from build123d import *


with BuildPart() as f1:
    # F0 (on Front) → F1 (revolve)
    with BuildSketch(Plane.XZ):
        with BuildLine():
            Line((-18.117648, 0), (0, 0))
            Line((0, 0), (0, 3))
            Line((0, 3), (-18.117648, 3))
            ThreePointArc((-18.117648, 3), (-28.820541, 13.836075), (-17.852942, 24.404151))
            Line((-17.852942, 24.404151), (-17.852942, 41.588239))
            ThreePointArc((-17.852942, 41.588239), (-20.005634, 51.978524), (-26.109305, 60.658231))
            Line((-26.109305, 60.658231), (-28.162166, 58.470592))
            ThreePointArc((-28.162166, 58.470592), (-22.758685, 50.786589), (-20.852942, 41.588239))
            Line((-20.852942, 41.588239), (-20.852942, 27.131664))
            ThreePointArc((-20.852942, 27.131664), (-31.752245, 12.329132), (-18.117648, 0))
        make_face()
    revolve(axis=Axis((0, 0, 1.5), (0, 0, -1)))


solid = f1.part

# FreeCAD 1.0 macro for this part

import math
import FreeCAD as App
import Part
import Sketcher
from FreeCAD import Vector
Q = App.Units.Quantity

doc = App.newDocument("Part")
body = doc.addObject("PartDesign::Body", "Body")

# Sketch on XZ plane
sketch1 = doc.addObject("Sketcher::SketchObject", "Sketch")
body.addObject(sketch1)
sketch1.AttachmentSupport = (doc.XZ_Plane, [""])
sketch1.MapMode = "FlatFace"
sketch1.addGeometry(Part.LineSegment(Vector(-18.1, 0, 0), Vector(0, 0, 0)), False)
sketch1.addGeometry(Part.LineSegment(Vector(0, 0, 0), Vector(0, 3, 0)), False)
sketch1.addGeometry(Part.LineSegment(Vector(0, 3, 0), Vector(-18.1, 3, 0)), False)
sketch1.addGeometry(Part.ArcOfCircle(Part.Circle(Vector(-18.1, 13.7, 0), Vector(0, 0, 1), 10.7), math.radians(89), math.radians(270)), False)
sketch1.addGeometry(Part.LineSegment(Vector(-17.9, 24.4, 0), Vector(-17.9, 41.6, 0)), False)
sketch1.addGeometry(Part.ArcOfCircle(Part.Circle(Vector(-44, 41.6, 0), Vector(0, 0, 1), 26.2), math.radians(0), math.radians(47)), False)
sketch1.addGeometry(Part.LineSegment(Vector(-26.1, 60.7, 0), Vector(-28.2, 58.5, 0)), False)
sketch1.addGeometry(Part.ArcOfCircle(Part.Circle(Vector(-44, 41.6, 0), Vector(0, 0, 1), 23.2), math.radians(0), math.radians(47)), False)
sketch1.addGeometry(Part.LineSegment(Vector(-20.9, 41.6, 0), Vector(-20.9, 27.1, 0)), False)
sketch1.addGeometry(Part.ArcOfCircle(Part.Circle(Vector(-18.1, 13.7, 0), Vector(0, 0, 1), 13.7), math.radians(102), math.radians(270)), False)
sketch1.addConstraint(Sketcher.Constraint("Coincident", 0, 2, 1, 1))
sketch1.addConstraint(Sketcher.Constraint("Coincident", 1, 2, 2, 1))
sketch1.addConstraint(Sketcher.Constraint("Tangent", 2, 2, 3, 2))
sketch1.addConstraint(Sketcher.Constraint("Coincident", 3, 1, 4, 1))
sketch1.addConstraint(Sketcher.Constraint("Tangent", 4, 2, 5, 1))
sketch1.addConstraint(Sketcher.Constraint("Coincident", 5, 2, 6, 1))
sketch1.addConstraint(Sketcher.Constraint("Coincident", 6, 2, 7, 2))
sketch1.addConstraint(Sketcher.Constraint("Tangent", 7, 1, 8, 1))
sketch1.addConstraint(Sketcher.Constraint("Coincident", 8, 2, 9, 1))
sketch1.addConstraint(Sketcher.Constraint("Tangent", 9, 2, 0, 1))
sketch1.addConstraint(Sketcher.Constraint("Horizontal", 0))
sketch1.addConstraint(Sketcher.Constraint("Vertical", 1))
sketch1.addConstraint(Sketcher.Constraint("Horizontal", 2))
sketch1.addConstraint(Sketcher.Constraint("Vertical", 4))
sketch1.addConstraint(Sketcher.Constraint("Vertical", 8))
sketch1.addConstraint(Sketcher.Constraint("Coincident", 0, 2, -1, 1))
sketch1.addConstraint(Sketcher.Constraint("Coincident", 7, 3, 5, 3))
sketch1.addConstraint(Sketcher.Constraint("Coincident", 9, 3, 3, 3))
sketch1.addConstraint(Sketcher.Constraint("DistanceY", 1, 1, 1, 2, Q("3 mm")))
sketch1.addConstraint(Sketcher.Constraint("Distance", 6, Q("3 mm")))
sketch1.addConstraint(Sketcher.Constraint("Radius", 5, Q("26.151481 mm")))
sketch1.addConstraint(Sketcher.Constraint("Radius", 3, Q("10.703712 mm")))
sketch1.addConstraint(Sketcher.Constraint("DistanceY", 4, 1, 4, 2, Q("17.184088 mm")))
sketch1.addConstraint(Sketcher.Constraint("DistanceX", 0, 1, 0, 2, Q("18.117648 mm")))
sketch1.addConstraint(Sketcher.Constraint("DistanceY", 8, 2, 8, 1, Q("14.456575 mm")))
sketch1.addConstraint(Sketcher.Constraint("DistanceY", -1, 1, 5, 2, Q("60.658231 mm")))
sketch1.addConstraint(Sketcher.Constraint("DistanceX", 6, 2, 5, 2, Q("2.052861 mm")))
revolution = doc.addObject("PartDesign::Revolution", "Revolution")
body.addObject(revolution)
revolution.Profile = sketch1
revolution.ReferenceAxis = (sketch1, ["V_Axis"])
revolution.Angle = 360

doc.recompute()
